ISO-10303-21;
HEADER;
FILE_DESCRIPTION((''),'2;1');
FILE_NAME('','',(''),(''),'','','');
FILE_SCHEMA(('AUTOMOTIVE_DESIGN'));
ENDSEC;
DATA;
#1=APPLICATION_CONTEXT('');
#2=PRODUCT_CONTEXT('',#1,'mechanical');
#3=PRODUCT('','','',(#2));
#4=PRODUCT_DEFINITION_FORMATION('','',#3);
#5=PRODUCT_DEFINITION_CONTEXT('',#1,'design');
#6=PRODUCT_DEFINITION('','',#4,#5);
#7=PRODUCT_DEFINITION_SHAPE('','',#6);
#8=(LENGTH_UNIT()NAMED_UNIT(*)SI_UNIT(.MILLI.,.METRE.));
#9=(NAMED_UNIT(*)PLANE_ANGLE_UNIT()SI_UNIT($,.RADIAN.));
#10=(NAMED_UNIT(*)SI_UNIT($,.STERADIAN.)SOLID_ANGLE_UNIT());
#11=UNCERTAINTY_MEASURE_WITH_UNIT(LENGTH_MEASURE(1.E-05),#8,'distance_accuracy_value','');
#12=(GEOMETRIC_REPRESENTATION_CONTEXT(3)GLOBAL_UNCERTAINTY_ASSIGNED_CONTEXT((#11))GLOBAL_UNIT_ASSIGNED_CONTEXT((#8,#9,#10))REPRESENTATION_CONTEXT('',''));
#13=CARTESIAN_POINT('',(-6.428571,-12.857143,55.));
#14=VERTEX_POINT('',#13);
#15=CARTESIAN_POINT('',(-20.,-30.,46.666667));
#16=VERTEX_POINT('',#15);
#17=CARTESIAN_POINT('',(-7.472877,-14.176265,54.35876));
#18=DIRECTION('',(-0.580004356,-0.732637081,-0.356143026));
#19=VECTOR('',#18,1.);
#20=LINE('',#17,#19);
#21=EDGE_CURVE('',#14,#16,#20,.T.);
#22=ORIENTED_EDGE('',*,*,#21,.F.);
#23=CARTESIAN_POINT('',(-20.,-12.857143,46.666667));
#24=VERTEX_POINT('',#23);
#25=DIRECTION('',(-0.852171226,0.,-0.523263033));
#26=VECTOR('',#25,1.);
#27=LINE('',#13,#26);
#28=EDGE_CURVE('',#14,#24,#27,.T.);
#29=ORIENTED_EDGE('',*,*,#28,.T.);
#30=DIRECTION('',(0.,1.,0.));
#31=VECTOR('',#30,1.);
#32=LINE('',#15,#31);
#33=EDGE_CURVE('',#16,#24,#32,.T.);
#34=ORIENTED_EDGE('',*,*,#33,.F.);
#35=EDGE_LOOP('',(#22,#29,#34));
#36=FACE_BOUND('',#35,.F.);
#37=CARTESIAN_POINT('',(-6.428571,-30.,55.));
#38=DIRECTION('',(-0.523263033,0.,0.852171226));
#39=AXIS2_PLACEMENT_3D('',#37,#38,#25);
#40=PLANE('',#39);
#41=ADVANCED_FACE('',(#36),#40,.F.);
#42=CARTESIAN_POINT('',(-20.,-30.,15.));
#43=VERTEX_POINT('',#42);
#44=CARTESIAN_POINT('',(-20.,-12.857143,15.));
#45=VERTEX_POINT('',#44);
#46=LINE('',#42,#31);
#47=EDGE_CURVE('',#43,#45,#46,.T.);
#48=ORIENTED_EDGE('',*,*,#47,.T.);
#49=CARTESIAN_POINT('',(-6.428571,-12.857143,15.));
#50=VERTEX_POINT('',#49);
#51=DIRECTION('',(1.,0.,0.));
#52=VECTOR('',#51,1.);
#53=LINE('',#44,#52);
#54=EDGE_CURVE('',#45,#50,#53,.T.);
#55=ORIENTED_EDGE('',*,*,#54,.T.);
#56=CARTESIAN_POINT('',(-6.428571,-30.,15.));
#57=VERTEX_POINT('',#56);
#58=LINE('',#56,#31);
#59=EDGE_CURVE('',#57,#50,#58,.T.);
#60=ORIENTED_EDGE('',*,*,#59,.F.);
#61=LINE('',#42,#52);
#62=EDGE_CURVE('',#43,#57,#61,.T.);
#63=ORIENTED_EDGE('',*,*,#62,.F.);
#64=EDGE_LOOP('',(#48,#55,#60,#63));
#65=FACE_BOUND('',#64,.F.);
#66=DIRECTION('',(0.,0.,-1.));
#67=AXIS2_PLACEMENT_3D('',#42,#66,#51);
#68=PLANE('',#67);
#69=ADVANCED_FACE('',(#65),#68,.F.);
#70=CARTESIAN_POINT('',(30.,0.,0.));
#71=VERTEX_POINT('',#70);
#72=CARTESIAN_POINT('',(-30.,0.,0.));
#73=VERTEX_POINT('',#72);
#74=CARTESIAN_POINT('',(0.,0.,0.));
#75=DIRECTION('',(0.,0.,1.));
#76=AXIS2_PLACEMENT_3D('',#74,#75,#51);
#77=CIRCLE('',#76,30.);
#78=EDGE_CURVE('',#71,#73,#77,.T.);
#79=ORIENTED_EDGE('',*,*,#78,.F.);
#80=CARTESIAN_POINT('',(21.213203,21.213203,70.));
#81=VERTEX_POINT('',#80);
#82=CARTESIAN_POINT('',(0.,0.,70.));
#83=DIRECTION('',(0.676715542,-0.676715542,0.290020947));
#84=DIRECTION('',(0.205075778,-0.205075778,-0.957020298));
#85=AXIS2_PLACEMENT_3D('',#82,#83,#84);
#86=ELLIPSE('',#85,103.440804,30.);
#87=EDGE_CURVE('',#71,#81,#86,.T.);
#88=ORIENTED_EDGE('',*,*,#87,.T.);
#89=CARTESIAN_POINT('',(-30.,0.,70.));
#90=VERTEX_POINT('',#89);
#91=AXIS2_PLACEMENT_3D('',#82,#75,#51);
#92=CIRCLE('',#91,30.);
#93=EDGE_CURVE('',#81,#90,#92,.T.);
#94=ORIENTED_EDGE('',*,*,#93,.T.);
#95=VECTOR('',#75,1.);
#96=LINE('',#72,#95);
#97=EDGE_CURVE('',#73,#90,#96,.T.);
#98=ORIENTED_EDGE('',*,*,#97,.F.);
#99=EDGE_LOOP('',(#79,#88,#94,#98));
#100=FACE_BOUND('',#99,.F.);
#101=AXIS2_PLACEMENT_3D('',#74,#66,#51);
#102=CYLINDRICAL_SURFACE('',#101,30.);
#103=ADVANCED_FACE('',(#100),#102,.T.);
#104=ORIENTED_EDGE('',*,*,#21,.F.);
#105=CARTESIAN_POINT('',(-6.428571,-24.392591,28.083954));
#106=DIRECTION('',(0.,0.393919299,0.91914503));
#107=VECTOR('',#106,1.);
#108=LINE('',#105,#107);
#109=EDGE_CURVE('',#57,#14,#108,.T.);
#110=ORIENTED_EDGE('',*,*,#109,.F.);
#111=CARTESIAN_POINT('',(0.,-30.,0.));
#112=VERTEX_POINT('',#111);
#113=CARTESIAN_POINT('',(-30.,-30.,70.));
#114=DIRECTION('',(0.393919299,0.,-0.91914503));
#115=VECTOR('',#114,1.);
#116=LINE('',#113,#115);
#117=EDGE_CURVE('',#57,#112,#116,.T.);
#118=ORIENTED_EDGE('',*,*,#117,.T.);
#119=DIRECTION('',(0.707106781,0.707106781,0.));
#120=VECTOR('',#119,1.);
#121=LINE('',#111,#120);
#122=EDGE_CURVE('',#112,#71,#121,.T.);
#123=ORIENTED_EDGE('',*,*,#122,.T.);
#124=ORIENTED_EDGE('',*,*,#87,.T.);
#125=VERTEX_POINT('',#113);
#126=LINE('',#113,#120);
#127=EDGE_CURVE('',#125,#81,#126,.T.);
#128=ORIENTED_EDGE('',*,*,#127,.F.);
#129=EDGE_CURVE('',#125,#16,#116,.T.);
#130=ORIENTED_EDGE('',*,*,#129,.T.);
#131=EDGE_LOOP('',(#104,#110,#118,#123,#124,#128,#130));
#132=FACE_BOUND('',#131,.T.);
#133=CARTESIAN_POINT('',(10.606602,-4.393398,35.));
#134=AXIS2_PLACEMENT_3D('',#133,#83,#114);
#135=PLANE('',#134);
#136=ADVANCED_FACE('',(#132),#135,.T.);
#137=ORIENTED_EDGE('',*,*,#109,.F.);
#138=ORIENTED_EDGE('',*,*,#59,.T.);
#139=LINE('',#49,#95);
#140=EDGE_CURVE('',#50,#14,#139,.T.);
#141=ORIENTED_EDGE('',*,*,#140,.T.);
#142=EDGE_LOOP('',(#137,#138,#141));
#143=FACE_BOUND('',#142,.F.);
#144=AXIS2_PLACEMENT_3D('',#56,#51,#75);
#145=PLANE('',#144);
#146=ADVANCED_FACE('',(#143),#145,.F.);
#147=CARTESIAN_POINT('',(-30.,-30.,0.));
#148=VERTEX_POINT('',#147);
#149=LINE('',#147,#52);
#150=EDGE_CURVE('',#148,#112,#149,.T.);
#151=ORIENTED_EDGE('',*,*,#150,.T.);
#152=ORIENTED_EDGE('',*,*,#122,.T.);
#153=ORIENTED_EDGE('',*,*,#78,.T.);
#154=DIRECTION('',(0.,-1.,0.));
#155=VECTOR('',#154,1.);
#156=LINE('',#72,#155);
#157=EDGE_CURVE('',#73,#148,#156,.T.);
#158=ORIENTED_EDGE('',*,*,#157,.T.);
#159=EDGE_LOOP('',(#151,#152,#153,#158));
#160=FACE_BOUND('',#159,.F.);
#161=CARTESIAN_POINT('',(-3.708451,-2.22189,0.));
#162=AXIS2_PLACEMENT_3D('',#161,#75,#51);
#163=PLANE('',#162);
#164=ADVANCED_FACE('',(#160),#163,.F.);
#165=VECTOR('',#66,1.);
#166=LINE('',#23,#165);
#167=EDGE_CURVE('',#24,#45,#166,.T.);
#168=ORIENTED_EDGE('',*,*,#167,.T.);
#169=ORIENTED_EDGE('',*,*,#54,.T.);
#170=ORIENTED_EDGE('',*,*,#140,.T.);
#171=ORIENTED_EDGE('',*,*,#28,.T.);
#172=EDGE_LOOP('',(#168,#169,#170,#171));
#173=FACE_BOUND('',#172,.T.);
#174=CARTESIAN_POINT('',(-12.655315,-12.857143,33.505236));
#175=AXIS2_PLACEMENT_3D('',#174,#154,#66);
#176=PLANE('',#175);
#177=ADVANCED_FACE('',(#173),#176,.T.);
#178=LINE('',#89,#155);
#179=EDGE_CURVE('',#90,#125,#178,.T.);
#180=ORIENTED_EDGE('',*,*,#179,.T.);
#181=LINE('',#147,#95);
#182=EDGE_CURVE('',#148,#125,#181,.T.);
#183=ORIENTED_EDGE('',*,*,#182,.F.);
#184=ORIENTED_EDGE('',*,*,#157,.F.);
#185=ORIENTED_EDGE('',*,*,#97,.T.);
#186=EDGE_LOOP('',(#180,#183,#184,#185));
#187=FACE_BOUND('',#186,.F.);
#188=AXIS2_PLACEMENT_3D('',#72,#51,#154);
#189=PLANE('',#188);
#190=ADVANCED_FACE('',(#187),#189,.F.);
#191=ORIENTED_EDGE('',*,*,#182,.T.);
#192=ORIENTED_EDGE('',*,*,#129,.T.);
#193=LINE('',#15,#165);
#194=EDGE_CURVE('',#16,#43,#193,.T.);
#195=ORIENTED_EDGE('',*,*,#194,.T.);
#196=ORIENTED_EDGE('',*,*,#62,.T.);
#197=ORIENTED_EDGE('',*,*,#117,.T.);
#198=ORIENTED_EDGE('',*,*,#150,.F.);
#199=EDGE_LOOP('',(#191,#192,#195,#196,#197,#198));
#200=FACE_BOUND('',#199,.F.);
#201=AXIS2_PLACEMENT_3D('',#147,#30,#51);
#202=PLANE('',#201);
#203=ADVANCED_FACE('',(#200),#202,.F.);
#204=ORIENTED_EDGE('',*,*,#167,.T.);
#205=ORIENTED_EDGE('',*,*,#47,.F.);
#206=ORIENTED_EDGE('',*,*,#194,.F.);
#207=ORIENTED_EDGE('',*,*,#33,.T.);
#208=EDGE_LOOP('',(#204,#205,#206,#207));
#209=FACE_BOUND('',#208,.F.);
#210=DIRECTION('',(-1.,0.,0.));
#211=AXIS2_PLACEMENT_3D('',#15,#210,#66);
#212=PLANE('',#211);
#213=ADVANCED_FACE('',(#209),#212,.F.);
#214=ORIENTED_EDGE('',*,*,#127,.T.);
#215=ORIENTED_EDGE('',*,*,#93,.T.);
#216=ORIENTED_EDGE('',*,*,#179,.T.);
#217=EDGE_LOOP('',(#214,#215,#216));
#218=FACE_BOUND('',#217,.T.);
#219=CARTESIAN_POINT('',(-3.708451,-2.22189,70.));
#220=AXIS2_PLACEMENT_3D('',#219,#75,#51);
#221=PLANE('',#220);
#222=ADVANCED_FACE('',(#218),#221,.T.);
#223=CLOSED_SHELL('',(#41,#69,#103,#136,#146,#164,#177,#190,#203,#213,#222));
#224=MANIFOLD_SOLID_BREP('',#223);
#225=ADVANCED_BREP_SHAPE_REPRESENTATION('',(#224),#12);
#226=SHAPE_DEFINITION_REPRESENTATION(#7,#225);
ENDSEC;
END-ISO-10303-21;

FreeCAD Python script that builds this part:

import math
import FreeCAD as App
import Part
import Sketcher
Q = App.Units.Quantity

doc = App.newDocument("Part")
params = doc.addObject("Spreadsheet::Sheet", "Params")
for row, (alias, value) in enumerate([
    ("sketch1_radius", "30 mm"),
    ("pad1_length", "70 mm"),
    ("sketch2_width", "30 mm"),
    ("sketch2_height", "70 mm"),
    ("sketch4_height", "40 mm"),
    ("pocket1_length", "25 mm"),
    ("sketch5_height", "40 mm"),
], start=1):
    params.set(f"A{row}", alias)
    params.set(f"B{row}", "=" + value)
    params.setAlias(f"B{row}", alias)

body = doc.addObject("PartDesign::Body", "Body")

# Sketch on XY plane
sketch1 = body.newObject("Sketcher::SketchObject", "Sketch")
sketch1.AttachmentSupport = (doc.getObject("XY_Plane"), [""])
sketch1.MapMode = "FlatFace"
sketch1.addGeometry(Part.LineSegment(App.Vector(-30, 0, 0), App.Vector(-30, -30, 0)), False)
sketch1.addGeometry(Part.LineSegment(App.Vector(-30, -30, 0), App.Vector(0, -30, 0)), False)
sketch1.addGeometry(Part.LineSegment(App.Vector(0, -30, 0), App.Vector(30, 0, 0)), False)
sketch1.addGeometry(Part.ArcOfCircle(Part.Circle(App.Vector(0, 0, 0), App.Vector(0, 0, 1), 30), math.radians(0), math.radians(180)), False)
sketch1.addConstraint(Sketcher.Constraint("Coincident", 0, 2, 1, 1))
sketch1.addConstraint(Sketcher.Constraint("Coincident", 1, 2, 2, 1))
sketch1.addConstraint(Sketcher.Constraint("Coincident", 2, 2, 3, 1))
sketch1.addConstraint(Sketcher.Constraint("Tangent", 3, 2, 0, 1))
sketch1.addConstraint(Sketcher.Constraint("Vertical", 0))
sketch1.addConstraint(Sketcher.Constraint("Horizontal", 1))
sketch1.addConstraint(Sketcher.Constraint("Coincident", 3, 3, -1, 1))
sketch1.addConstraint(Sketcher.Constraint("PointOnObject", 1, 2, -2))
sketch1.addConstraint(Sketcher.Constraint("PointOnObject", 2, 2, -1))
sketch1.addConstraint(Sketcher.Constraint("Equal", 1, 0))
sketch1.addConstraint(Sketcher.Constraint("Radius", 3, Q("30 mm")))
sketch1.setExpression("Constraints[10]", "Params.sketch1_radius")
pad1 = body.newObject("PartDesign::Pad", "Pad")
pad1.Profile = sketch1
pad1.setExpression("Length", "Params.pad1_length")

# Sketch on XZ plane
sketch2 = body.newObject("Sketcher::SketchObject", "Sketch001")
sketch2.AttachmentSupport = (doc.getObject("XZ_Plane"), [""])
sketch2.MapMode = "FlatFace"
sketch2.AttachmentOffset = App.Placement(App.Vector(0, 0, 30), App.Rotation())
sketch2.addGeometry(Part.LineSegment(App.Vector(0, 70, 0), App.Vector(-30, 70, 0)), False)
sketch2.addGeometry(Part.LineSegment(App.Vector(-30, 70, 0), App.Vector(0, 0, 0)), False)
sketch2.addGeometry(Part.LineSegment(App.Vector(0, 0, 0), App.Vector(0, 70, 0)), False)
sketch2.addConstraint(Sketcher.Constraint("Coincident", 0, 2, 1, 1))
sketch2.addConstraint(Sketcher.Constraint("Coincident", 1, 2, 2, 1))
sketch2.addConstraint(Sketcher.Constraint("Coincident", 2, 2, 0, 1))
sketch2.addConstraint(Sketcher.Constraint("Horizontal", 0))
sketch2.addConstraint(Sketcher.Constraint("Vertical", 2))
sketch2.addConstraint(Sketcher.Constraint("Coincident", 1, 2, -1, 1))
sketch2.addConstraint(Sketcher.Constraint("DistanceX", 0, 2, 0, 1, Q("30 mm")))
sketch2.addConstraint(Sketcher.Constraint("DistanceY", 2, 1, 2, 2, Q("70 mm")))
sketch2.setExpression("Constraints[6]", "Params.sketch2_width")
sketch2.setExpression("Constraints[7]", "Params.sketch2_height")

# Sketch on an angled plane
sketch3 = body.newObject("Sketcher::SketchObject", "Sketch002")
sketch3.Placement = App.Placement(App.Vector(0, 0, 0), App.Rotation(App.Vector(0.707106781, 0.707106781, 0), App.Vector(0, 0, 0.999999999), App.Vector(0.707106781, -0.707106781, 0), "ZXY"))
sketch3.addGeometry(Part.LineSegment(App.Vector(-42, 70, 0), App.Vector(30, 70, 0)), False)
sketch3.addConstraint(Sketcher.Constraint("Horizontal", 0))
sketch3.addConstraint(Sketcher.Constraint("DistanceY", -1, 1, 0, 1, Q("70 mm")))
sketch3.addConstraint(Sketcher.Constraint("DistanceX", -1, 1, 0, 2, Q("30 mm")))
sketch3.addConstraint(Sketcher.Constraint("DistanceX", 0, 1, 0, 2, Q("72.426407 mm")))
doc.recompute()

subtractivepipe = body.newObject("PartDesign::SubtractivePipe", "SubtractivePipe")
subtractivepipe.Profile = sketch2
subtractivepipe.Spine = (sketch3, ["Edge1"])

# Sketch on XZ plane
sketch4 = body.newObject("Sketcher::SketchObject", "Sketch003")
sketch4.AttachmentSupport = (doc.getObject("XZ_Plane"), [""])
sketch4.MapMode = "FlatFace"
sketch4.AttachmentOffset = App.Placement(App.Vector(0, 0, 30), App.Rotation())
sketch4.addGeometry(Part.LineSegment(App.Vector(-20, 47, 0), App.Vector(-20, 15, 0)), False)
sketch4.addGeometry(Part.LineSegment(App.Vector(-20, 15, 0), App.Vector(-6, 15, 0)), False)
sketch4.addGeometry(Part.LineSegment(App.Vector(-6, 15, 0), App.Vector(-6, 55, 0)), False)
sketch4.addGeometry(Part.LineSegment(App.Vector(-6, 55, 0), App.Vector(-20, 47, 0)), False)
sketch4.addConstraint(Sketcher.Constraint("Coincident", 0, 2, 1, 1))
sketch4.addConstraint(Sketcher.Constraint("Coincident", 1, 2, 2, 1))
sketch4.addConstraint(Sketcher.Constraint("Coincident", 2, 2, 3, 1))
sketch4.addConstraint(Sketcher.Constraint("Coincident", 3, 2, 0, 1))
sketch4.addConstraint(Sketcher.Constraint("Vertical", 0))
sketch4.addConstraint(Sketcher.Constraint("Horizontal", 1))
sketch4.addConstraint(Sketcher.Constraint("Vertical", 2))
sketch4.addConstraint(Sketcher.Constraint("DistanceY", 2, 1, 2, 2, Q("40 mm")))
sketch4.addConstraint(Sketcher.Constraint("DistanceX", 0, 2, -1, 1, Q("20 mm")))
sketch4.addConstraint(Sketcher.Constraint("DistanceY", -1, 1, 0, 2, Q("15 mm")))
sketch4.addConstraint(Sketcher.Constraint("DistanceX", 1, 1, 1, 2, Q("13.571429 mm")))
sketch4.addConstraint(Sketcher.Constraint("DistanceY", 0, 2, 0, 1, Q("31.666667 mm")))
sketch4.setExpression("Constraints[7]", "Params.sketch4_height")
pocket1 = body.newObject("PartDesign::Pocket", "Pocket")
pocket1.Profile = sketch4
pocket1.setExpression("Length", "Params.pocket1_length")

# Sketch on XZ plane
sketch5 = body.newObject("Sketcher::SketchObject", "Sketch004")
sketch5.AttachmentSupport = (doc.getObject("XZ_Plane"), [""])
sketch5.MapMode = "FlatFace"
sketch5.AttachmentOffset = App.Placement(App.Vector(0, 0, 5), App.Rotation())
sketch5.addGeometry(Part.LineSegment(App.Vector(-6, 55, 0), App.Vector(-20, 47, 0)), False)
sketch5.addGeometry(Part.LineSegment(App.Vector(-20, 47, 0), App.Vector(-20, 15, 0)), False)
sketch5.addGeometry(Part.LineSegment(App.Vector(-20, 15, 0), App.Vector(-6, 15, 0)), False)
sketch5.addGeometry(Part.LineSegment(App.Vector(-6, 15, 0), App.Vector(-6, 55, 0)), False)
sketch5.addConstraint(Sketcher.Constraint("Coincident", 0, 2, 1, 1))
sketch5.addConstraint(Sketcher.Constraint("Coincident", 1, 2, 2, 1))
sketch5.addConstraint(Sketcher.Constraint("Coincident", 2, 2, 3, 1))
sketch5.addConstraint(Sketcher.Constraint("Coincident", 3, 2, 0, 1))
sketch5.addConstraint(Sketcher.Constraint("Vertical", 1))
sketch5.addConstraint(Sketcher.Constraint("Horizontal", 2))
sketch5.addConstraint(Sketcher.Constraint("Vertical", 3))
sketch5.addConstraint(Sketcher.Constraint("DistanceY", 3, 1, 3, 2, Q("40 mm")))
sketch5.addConstraint(Sketcher.Constraint("DistanceX", 0, 2, -1, 1, Q("20 mm")))
sketch5.addConstraint(Sketcher.Constraint("DistanceY", -1, 1, 1, 2, Q("15 mm")))
sketch5.addConstraint(Sketcher.Constraint("DistanceX", 2, 1, 2, 2, Q("13.571429 mm")))
sketch5.addConstraint(Sketcher.Constraint("DistanceY", 1, 2, 1, 1, Q("31.666667 mm")))
sketch5.setExpression("Constraints[7]", "Params.sketch5_height")

# Sketch on XY plane
sketch6 = body.newObject("Sketcher::SketchObject", "Sketch005")
sketch6.AttachmentSupport = (doc.getObject("XY_Plane"), [""])
sketch6.MapMode = "FlatFace"
sketch6.AttachmentOffset = App.Placement(App.Vector(0, 0, 55), App.Rotation())
sketch6.addGeometry(Part.LineSegment(App.Vector(-6, -5, 0), App.Vector(-6, -13, 0)), False)
sketch6.addConstraint(Sketcher.Constraint("Vertical", 0))
sketch6.addConstraint(Sketcher.Constraint("DistanceY", 0, 1, -1, 1, Q("5 mm")))
sketch6.addConstraint(Sketcher.Constraint("DistanceY", 0, 2, 0, 1, Q("7.857143 mm")))
sketch6.addConstraint(Sketcher.Constraint("DistanceX", 0, 1, -1, 1, Q("6.428571 mm")))
doc.recompute()

additivepipe = body.newObject("PartDesign::AdditivePipe", "AdditivePipe")
additivepipe.Profile = sketch5
additivepipe.Spine = (sketch6, ["Edge1"])

doc.recompute()
